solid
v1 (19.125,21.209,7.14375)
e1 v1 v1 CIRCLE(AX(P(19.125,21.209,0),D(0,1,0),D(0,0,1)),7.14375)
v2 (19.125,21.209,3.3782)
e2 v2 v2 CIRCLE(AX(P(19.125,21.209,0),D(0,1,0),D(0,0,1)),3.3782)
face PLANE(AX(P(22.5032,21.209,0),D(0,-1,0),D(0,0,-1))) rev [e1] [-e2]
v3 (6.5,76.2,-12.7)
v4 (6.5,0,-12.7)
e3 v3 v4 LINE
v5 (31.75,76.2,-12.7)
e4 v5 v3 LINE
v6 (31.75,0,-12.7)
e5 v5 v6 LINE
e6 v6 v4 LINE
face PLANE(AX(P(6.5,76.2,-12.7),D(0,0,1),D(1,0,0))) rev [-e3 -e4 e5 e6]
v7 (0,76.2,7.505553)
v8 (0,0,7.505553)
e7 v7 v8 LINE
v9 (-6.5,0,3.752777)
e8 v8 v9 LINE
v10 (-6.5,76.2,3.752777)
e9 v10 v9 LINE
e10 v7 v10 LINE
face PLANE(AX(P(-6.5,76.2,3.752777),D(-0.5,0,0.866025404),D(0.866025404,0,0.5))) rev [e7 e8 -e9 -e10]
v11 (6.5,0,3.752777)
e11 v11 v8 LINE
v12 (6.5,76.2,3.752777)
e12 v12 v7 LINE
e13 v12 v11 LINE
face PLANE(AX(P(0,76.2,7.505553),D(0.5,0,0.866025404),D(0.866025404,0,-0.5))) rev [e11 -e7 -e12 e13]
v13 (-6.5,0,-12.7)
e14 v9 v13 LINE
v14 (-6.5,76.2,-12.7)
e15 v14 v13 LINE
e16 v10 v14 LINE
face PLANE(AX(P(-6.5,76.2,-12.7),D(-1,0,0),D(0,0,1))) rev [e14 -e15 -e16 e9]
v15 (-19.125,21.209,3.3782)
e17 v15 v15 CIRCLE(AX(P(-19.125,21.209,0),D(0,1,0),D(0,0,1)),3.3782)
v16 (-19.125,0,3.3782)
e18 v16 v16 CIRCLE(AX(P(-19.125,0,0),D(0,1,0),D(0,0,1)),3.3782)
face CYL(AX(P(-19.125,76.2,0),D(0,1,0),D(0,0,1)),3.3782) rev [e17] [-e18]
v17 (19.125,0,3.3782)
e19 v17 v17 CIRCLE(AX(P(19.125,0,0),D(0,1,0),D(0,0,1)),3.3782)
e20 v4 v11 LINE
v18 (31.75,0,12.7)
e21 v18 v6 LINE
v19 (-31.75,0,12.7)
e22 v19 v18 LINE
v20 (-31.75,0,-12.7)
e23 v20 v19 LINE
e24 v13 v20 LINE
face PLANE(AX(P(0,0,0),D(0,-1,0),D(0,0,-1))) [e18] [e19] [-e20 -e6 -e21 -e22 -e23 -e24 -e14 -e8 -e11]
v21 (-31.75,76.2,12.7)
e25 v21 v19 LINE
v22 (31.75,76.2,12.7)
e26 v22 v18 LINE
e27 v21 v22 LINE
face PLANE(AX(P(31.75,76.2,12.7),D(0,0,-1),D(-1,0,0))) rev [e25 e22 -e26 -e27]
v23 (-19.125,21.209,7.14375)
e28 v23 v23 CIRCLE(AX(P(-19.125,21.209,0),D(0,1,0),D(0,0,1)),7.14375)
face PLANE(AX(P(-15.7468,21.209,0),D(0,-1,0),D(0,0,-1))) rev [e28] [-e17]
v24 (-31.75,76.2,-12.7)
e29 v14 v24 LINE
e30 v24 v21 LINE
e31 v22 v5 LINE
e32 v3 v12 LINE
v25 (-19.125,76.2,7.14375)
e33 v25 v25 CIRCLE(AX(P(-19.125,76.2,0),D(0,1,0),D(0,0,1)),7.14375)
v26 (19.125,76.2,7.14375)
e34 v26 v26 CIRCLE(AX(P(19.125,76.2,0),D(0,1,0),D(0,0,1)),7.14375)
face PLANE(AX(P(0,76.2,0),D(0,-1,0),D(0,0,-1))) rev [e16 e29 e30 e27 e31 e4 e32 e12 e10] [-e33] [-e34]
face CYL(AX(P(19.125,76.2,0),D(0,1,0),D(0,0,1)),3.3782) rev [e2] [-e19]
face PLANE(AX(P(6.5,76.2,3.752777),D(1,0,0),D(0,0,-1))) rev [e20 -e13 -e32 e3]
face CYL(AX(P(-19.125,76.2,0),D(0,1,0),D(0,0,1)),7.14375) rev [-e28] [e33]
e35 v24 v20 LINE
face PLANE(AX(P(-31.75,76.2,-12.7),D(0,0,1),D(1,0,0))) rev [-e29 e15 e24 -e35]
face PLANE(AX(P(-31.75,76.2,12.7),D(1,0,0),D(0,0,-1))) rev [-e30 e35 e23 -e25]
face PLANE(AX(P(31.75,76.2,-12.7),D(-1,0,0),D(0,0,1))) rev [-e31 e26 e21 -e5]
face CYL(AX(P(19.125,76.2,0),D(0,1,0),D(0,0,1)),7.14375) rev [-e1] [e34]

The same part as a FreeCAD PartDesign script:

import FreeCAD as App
import Part
import Sketcher

V = App.Vector
Q = App.Units.Quantity


def add_polygon(sketch, points):
    """Adds a closed chain of lines whose ends are joined by coincident constraints."""
    first, n = sketch.GeometryCount, len(points)
    for a, b in zip(points, points[1:] + points[:1]):
        sketch.addGeometry(Part.LineSegment(App.Vector(*a, 0), App.Vector(*b, 0)), False)
    for i in range(n):
        sketch.addConstraint(Sketcher.Constraint("Coincident", first + i, 2, first + (i + 1) % n, 1))

doc = App.newDocument("Part")
body = doc.addObject("PartDesign::Body", "Body")

sketch1 = body.newObject("Sketcher::SketchObject", "Sketch")
sketch1.AttachmentSupport = (doc.getObject("XZ_Plane"), [""])
sketch1.MapMode = "FlatFace"
add_polygon(sketch1, [(6, 4), (0, 8), (-6, 4), (-6, -13), (-32, -13), (-32, 13), (32, 13), (32, -13), (6, -13)])
sketch1.addConstraint(Sketcher.Constraint("Vertical", 2))
sketch1.addConstraint(Sketcher.Constraint("Horizontal", 3))
sketch1.addConstraint(Sketcher.Constraint("Vertical", 4))
sketch1.addConstraint(Sketcher.Constraint("Horizontal", 5))
sketch1.addConstraint(Sketcher.Constraint("Vertical", 6))
sketch1.addConstraint(Sketcher.Constraint("Horizontal", 7))
sketch1.addConstraint(Sketcher.Constraint("Vertical", 8))
sketch1.addConstraint(Sketcher.Constraint("Symmetric", 3, 2, 5, 2, -1, 1))
sketch1.addConstraint(Sketcher.Constraint("Symmetric", 2, 2, 7, 2, -2))
sketch1.addConstraint(Sketcher.Constraint("PointOnObject", 0, 2, -2))
sketch1.addConstraint(Sketcher.Constraint("Horizontal", 1, 2, 8, 2))
sketch1.addConstraint(Sketcher.Constraint("DistanceY", 4, 1, 4, 2, Q("1 in")))
sketch1.addConstraint(Sketcher.Constraint("DistanceX", 5, 1, 5, 2, Q("2.5 in")))
sketch1.addConstraint(Sketcher.Constraint("Angle", 0, Q("150 deg")))
sketch1.addConstraint(Sketcher.Constraint("DistanceX", 3, 2, 3, 1, Q("25.25 mm")))
sketch1.addConstraint(Sketcher.Constraint("DistanceY", 2, 2, 2, 1, Q("16.452777 mm")))
pad1 = body.newObject("PartDesign::Pad", "Pad")
pad1.Profile = sketch1
pad1.Length = Q("3 in")
pad1.Reversed = True

sketch2 = body.newObject("Sketcher::SketchObject", "Sketch001")
sketch2.AttachmentSupport = (doc.getObject("XZ_Plane"), [""])
sketch2.MapMode = "FlatFace"
sketch2.AttachmentOffset = App.Placement(V(0, 0, -3 * 25.4), App.Rotation())
sketch2.addGeometry(Part.Circle(V(-19.1, 0, 0), V(0, 0, 1), 3.4), False)
sketch2.addGeometry(Part.Circle(V(19.1, 0, 0), V(0, 0, 1), 3.4), False)
sketch2.addConstraint(Sketcher.Constraint("Equal", 0, 1))
sketch2.addConstraint(Sketcher.Constraint("Symmetric", 0, 3, 1, 3, -1, 1))
sketch2.addConstraint(Sketcher.Constraint("PointOnObject", 0, 3, -1))
sketch2.addConstraint(Sketcher.Constraint("Diameter", 0, Q("0.266 in")))
sketch2.addConstraint(Sketcher.Constraint("DistanceX", 0, 3, -1, 1, Q("19.125 mm")))
doc.recompute()
hole = body.newObject("PartDesign::Hole", "Hole")
hole.Profile = sketch2
hole.ThreadType = "None"
hole.Diameter = Q("0.266 in")
hole.DepthType = "ThroughAll"
hole.HoleCutType = "Counterbore"
hole.HoleCutDiameter = Q("0.5625 in")
hole.HoleCutDepth = Q("2.165 in")
hole.Reversed = True

doc.recompute()
